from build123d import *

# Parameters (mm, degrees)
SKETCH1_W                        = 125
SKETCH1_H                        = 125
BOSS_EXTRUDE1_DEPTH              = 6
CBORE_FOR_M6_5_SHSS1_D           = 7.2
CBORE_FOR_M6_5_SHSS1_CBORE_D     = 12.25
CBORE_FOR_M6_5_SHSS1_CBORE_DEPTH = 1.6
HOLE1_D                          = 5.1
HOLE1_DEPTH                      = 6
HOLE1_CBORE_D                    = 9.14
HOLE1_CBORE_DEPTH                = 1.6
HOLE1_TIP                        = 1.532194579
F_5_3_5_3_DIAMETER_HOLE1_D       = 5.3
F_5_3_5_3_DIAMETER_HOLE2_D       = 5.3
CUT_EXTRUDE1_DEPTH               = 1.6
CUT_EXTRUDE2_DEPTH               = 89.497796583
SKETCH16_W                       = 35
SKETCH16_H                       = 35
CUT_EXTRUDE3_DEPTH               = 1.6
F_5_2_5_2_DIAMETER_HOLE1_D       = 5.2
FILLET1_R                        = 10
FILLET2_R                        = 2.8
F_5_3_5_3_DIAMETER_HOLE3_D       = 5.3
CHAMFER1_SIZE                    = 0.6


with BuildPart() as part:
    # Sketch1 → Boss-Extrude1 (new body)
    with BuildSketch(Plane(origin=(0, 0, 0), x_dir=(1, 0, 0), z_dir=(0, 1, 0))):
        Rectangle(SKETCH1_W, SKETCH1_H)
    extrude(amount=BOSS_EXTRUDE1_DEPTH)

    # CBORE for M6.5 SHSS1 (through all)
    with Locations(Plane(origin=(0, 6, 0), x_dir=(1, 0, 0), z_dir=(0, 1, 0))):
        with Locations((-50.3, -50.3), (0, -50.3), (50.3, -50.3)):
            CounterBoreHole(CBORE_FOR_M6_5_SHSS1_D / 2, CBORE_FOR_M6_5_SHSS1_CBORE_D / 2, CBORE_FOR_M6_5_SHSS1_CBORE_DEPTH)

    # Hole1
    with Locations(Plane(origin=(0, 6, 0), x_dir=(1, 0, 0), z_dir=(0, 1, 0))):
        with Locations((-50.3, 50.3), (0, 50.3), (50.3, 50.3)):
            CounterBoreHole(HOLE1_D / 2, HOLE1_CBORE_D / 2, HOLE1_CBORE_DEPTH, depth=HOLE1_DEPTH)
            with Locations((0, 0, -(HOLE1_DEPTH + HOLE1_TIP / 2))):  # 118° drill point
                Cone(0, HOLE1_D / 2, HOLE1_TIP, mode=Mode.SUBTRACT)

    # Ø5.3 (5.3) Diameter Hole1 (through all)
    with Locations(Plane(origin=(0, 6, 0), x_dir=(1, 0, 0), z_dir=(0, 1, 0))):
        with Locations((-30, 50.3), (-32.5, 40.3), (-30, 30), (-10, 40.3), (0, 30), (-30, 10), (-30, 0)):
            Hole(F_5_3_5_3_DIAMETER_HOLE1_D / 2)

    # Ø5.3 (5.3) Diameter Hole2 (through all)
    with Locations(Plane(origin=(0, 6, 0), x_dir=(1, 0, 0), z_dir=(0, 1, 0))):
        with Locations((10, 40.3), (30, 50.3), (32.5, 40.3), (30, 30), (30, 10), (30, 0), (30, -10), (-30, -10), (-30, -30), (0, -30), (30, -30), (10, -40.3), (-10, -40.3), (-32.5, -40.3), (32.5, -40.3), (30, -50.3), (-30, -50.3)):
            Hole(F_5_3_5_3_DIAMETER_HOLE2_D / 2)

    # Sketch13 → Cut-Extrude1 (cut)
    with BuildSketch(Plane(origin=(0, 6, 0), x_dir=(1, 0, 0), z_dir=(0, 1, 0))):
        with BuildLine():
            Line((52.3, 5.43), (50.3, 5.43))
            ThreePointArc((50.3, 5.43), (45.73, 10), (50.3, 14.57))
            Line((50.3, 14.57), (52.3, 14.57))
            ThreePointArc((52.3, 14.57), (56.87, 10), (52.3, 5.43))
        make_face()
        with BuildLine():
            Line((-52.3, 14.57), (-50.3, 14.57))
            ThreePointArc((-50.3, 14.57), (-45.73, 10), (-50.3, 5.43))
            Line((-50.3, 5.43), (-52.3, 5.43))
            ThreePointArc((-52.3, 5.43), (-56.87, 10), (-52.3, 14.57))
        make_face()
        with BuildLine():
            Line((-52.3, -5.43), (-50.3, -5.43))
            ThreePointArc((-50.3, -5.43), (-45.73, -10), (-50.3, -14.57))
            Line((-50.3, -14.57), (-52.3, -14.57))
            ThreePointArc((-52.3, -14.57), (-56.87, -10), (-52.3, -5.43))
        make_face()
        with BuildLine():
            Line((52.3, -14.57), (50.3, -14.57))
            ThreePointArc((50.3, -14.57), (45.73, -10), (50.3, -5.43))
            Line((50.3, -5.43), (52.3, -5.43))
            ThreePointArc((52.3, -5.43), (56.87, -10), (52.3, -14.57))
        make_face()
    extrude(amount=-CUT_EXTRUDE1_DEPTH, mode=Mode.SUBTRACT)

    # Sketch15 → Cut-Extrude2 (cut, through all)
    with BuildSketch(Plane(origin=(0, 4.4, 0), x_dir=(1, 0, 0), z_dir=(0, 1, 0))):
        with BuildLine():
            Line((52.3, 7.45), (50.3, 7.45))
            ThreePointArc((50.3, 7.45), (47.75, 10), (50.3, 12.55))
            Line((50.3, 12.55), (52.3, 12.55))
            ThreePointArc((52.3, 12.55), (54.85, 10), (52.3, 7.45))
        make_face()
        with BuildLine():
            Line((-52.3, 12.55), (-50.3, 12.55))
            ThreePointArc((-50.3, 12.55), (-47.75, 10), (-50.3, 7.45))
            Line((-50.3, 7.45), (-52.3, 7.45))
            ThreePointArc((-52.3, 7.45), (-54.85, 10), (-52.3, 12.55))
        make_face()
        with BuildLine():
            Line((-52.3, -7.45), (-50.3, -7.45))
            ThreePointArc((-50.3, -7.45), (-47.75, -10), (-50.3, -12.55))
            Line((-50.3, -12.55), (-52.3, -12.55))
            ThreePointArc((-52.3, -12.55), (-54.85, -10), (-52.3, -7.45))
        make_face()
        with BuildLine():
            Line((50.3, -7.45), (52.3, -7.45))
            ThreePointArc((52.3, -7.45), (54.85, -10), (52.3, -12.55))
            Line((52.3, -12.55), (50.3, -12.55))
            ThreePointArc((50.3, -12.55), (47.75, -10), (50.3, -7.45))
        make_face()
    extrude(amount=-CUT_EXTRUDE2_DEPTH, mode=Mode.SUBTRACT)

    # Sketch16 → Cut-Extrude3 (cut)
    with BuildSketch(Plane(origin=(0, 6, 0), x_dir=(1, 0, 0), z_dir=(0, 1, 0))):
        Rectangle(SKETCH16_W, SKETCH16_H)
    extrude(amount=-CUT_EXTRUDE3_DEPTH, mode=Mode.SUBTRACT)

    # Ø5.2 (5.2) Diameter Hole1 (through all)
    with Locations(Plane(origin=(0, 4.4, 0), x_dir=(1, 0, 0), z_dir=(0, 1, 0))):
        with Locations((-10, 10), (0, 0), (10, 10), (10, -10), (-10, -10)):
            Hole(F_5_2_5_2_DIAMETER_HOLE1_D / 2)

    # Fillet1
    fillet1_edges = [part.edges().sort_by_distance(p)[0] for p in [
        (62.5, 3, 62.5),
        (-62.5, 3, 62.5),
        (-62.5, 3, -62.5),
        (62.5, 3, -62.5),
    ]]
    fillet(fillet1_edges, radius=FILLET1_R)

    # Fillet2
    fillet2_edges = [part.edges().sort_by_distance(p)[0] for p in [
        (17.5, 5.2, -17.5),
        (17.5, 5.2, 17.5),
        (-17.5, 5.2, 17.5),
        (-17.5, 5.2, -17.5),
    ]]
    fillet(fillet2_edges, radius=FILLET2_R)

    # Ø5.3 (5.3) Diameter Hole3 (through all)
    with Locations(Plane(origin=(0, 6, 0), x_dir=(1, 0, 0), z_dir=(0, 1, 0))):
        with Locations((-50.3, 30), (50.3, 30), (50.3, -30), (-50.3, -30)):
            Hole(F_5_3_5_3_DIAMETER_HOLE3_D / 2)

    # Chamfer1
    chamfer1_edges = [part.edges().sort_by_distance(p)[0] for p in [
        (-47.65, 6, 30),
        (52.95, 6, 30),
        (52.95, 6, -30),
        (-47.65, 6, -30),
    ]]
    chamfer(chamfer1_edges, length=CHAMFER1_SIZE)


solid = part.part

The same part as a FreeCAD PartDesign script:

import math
import FreeCAD as App
import Part
import Sketcher

V = App.Vector


def edges_at(feature, points):
    """Names of the edges that pass closest to the given points."""
    edges = feature.Shape.Edges
    near = lambda p: min(range(len(edges)), key=lambda i: edges[i].distToShape(Part.Vertex(*p))[0])
    return sorted({f"Edge{near(p) + 1}" for p in points})

doc = App.newDocument("Part")
params = doc.addObject("Spreadsheet::Sheet", "Params")
for row, (alias, value) in enumerate([
    ("sketch1_width", "125 mm"),
    ("pad1_length", "6 mm"),
    ("sketch2_diameter", "7.2 mm"),
    ("hole_diameter", "7.2 mm"),
    ("hole_cbore_diameter", "12.25 mm"),
    ("hole_cbore_depth", "1.6 mm"),
    ("sketch3_diameter", "5.1 mm"),
    ("hole2_diameter", "5.1 mm"),
    ("hole2_depth", "6 mm"),
    ("hole2_cbore_diameter", "9.14 mm"),
    ("hole2_cbore_depth", "1.6 mm"),
    ("sketch4_diameter", "5.3 mm"),
    ("hole3_diameter", "5.3 mm"),
    ("sketch5_diameter", "5.3 mm"),
    ("hole4_diameter", "5.3 mm"),
    ("sketch6_width", "2 mm"),
    ("sketch6_radius", "4.57 mm"),
    ("pocket1_length", "1.6 mm"),
    ("sketch7_width", "2 mm"),
    ("sketch7_radius", "2.55 mm"),
    ("sketch8_width", "35 mm"),
    ("pocket3_length", "1.6 mm"),
    ("sketch9_diameter", "5.2 mm"),
    ("hole5_diameter", "5.2 mm"),
    ("fillet_radius", "10 mm"),
    ("fillet2_radius", "2.8 mm"),
    ("sketch10_diameter", "5.3 mm"),
    ("hole6_diameter", "5.3 mm"),
    ("chamfer_size", "0.6 mm"),
], start=1):
    params.set(f"A{row}", alias)
    params.set(f"B{row}", "=" + value)
    params.setAlias(f"B{row}", alias)

body = doc.addObject("PartDesign::Body", "Body")

# Sketch on XZ plane
sketch1 = doc.addObject("Sketcher::SketchObject", "Sketch")
body.addObject(sketch1)
sketch1.AttachmentSupport = (doc.XZ_Plane, [""])
sketch1.MapMode = "FlatFace"
sketch1.addGeometry([
    Part.LineSegment(V(-62, -62, 0), V(-62, 62, 0)),
    Part.LineSegment(V(-62, 62, 0), V(62, 62, 0)),
    Part.LineSegment(V(62, 62, 0), V(62, -62, 0)),
    Part.LineSegment(V(62, -62, 0), V(-62, -62, 0)),
], False)
sketch1.addConstraint([
    Sketcher.Constraint("Coincident", 0, 2, 1, 1),
    Sketcher.Constraint("Coincident", 1, 2, 2, 1),
    Sketcher.Constraint("Coincident", 2, 2, 3, 1),
    Sketcher.Constraint("Coincident", 3, 2, 0, 1),
    Sketcher.Constraint("Vertical", 0),
    Sketcher.Constraint("Horizontal", 1),
    Sketcher.Constraint("Vertical", 2),
    Sketcher.Constraint("Horizontal", 3),
    Sketcher.Constraint("Symmetric", 0, 2, 2, 2, -1, 1),
    Sketcher.Constraint("Equal", 3, 0),
    Sketcher.Constraint("DistanceX", 1, 1, 1, 2, 125.0),
])
sketch1.setExpression("Constraints[10]", "Params.sketch1_width")
pad1 = doc.addObject("PartDesign::Pad", "Pad")
body.addObject(pad1)
pad1.Profile = sketch1
pad1.setExpression("Length", "Params.pad1_length")
pad1.Reversed = True

# Sketch on XZ plane
sketch2 = doc.addObject("Sketcher::SketchObject", "Sketch001")
body.addObject(sketch2)
sketch2.AttachmentSupport = (doc.XZ_Plane, [""])
sketch2.MapMode = "FlatFace"
sketch2.AttachmentOffset = App.Placement(V(0, 0, -6), App.Rotation())
sketch2.addGeometry([
    Part.Circle(V(-50.3, 50.3, 0), V(0, 0, 1), 3.6),
    Part.Circle(V(0, 50.3, 0), V(0, 0, 1), 3.6),
    Part.Circle(V(50.3, 50.3, 0), V(0, 0, 1), 3.6),
], False)
sketch2.addConstraint([
    Sketcher.Constraint("Equal", 0, 1),
    Sketcher.Constraint("Equal", 1, 2),
    Sketcher.Constraint("Symmetric", 0, 3, 2, 3, -2),
    Sketcher.Constraint("PointOnObject", 1, 3, -2),
    Sketcher.Constraint("Horizontal", 0, 3, 1, 3),
    Sketcher.Constraint("Diameter", 0, 7.2),
    Sketcher.Constraint("DistanceX", 0, 3, -1, 1, 50.3),
    Sketcher.Constraint("DistanceY", -1, 1, 0, 3, 50.3),
])
sketch2.setExpression("Constraints[5]", "Params.sketch2_diameter")
doc.recompute()
hole = doc.addObject("PartDesign::Hole", "Hole")
body.addObject(hole)
hole.Profile = sketch2
hole.ThreadType = "None"
hole.setExpression("Diameter", "Params.hole_diameter")
hole.DepthType = "ThroughAll"
hole.HoleCutType = "Counterbore"
hole.setExpression("HoleCutDiameter", "Params.hole_cbore_diameter")
hole.setExpression("HoleCutDepth", "Params.hole_cbore_depth")
hole.Reversed = True

# Sketch on XZ plane
sketch3 = doc.addObject("Sketcher::SketchObject", "Sketch002")
body.addObject(sketch3)
sketch3.AttachmentSupport = (doc.XZ_Plane, [""])
sketch3.MapMode = "FlatFace"
sketch3.AttachmentOffset = App.Placement(V(0, 0, -6), App.Rotation())
sketch3.addGeometry([
    Part.Circle(V(-50.3, -50.3, 0), V(0, 0, 1), 2.5),
    Part.Circle(V(0, -50.3, 0), V(0, 0, 1), 2.5),
    Part.Circle(V(50.3, -50.3, 0), V(0, 0, 1), 2.5),
], False)
sketch3.addConstraint([
    Sketcher.Constraint("Equal", 0, 1),
    Sketcher.Constraint("Equal", 1, 2),
    Sketcher.Constraint("Symmetric", 0, 3, 2, 3, -2),
    Sketcher.Constraint("PointOnObject", 1, 3, -2),
    Sketcher.Constraint("Horizontal", 0, 3, 1, 3),
    Sketcher.Constraint("Diameter", 0, 5.1),
    Sketcher.Constraint("DistanceX", 0, 3, -1, 1, 50.3),
    Sketcher.Constraint("DistanceY", 0, 3, -1, 1, 50.3),
])
sketch3.setExpression("Constraints[5]", "Params.sketch3_diameter")
doc.recompute()
hole2 = doc.addObject("PartDesign::Hole", "Hole001")
body.addObject(hole2)
hole2.Profile = sketch3
hole2.ThreadType = "None"
hole2.setExpression("Diameter", "Params.hole2_diameter")
hole2.DepthType = "Dimension"
hole2.setExpression("Depth", "Params.hole2_depth")
hole2.DrillPoint = "Angled"
hole2.DrillPointAngle = 118
hole2.HoleCutType = "Counterbore"
hole2.setExpression("HoleCutDiameter", "Params.hole2_cbore_diameter")
hole2.setExpression("HoleCutDepth", "Params.hole2_cbore_depth")
hole2.Reversed = True

# Sketch on XZ plane
sketch4 = doc.addObject("Sketcher::SketchObject", "Sketch003")
body.addObject(sketch4)
sketch4.AttachmentSupport = (doc.XZ_Plane, [""])
sketch4.MapMode = "FlatFace"
sketch4.AttachmentOffset = App.Placement(V(0, 0, -6), App.Rotation())
sketch4.addGeometry([
    Part.Circle(V(-30, -50.3, 0), V(0, 0, 1), 2.6),  # 0
    Part.Circle(V(-32.5, -40.3, 0), V(0, 0, 1), 2.6),  # 1
    Part.Circle(V(-30, -30, 0), V(0, 0, 1), 2.6),  # 2
    Part.Circle(V(-10, -40.3, 0), V(0, 0, 1), 2.6),  # 3
    Part.Circle(V(0, -30, 0), V(0, 0, 1), 2.6),  # 4
    Part.Circle(V(-30, -10, 0), V(0, 0, 1), 2.6),  # 5
    Part.Circle(V(-30, 0, 0), V(0, 0, 1), 2.6),  # 6
], False)
sketch4.addConstraint([
    Sketcher.Constraint("Equal", 0, 1),
    Sketcher.Constraint("Equal", 1, 2),
    Sketcher.Constraint("Equal", 2, 3),
    Sketcher.Constraint("Equal", 3, 4),
    Sketcher.Constraint("Equal", 4, 5),
    Sketcher.Constraint("Equal", 5, 6),
    Sketcher.Constraint("PointOnObject", 4, 3, -2),
    Sketcher.Constraint("PointOnObject", 6, 3, -1),
    Sketcher.Constraint("Horizontal", 1, 3, 3, 3),
    Sketcher.Constraint("Horizontal", 2, 3, 4, 3),
    Sketcher.Constraint("Vertical", 0, 3, 2, 3),
    Sketcher.Constraint("Vertical", 2, 3, 5, 3),
    Sketcher.Constraint("Vertical", 5, 3, 6, 3),
    Sketcher.Constraint("Diameter", 0, 5.3),
    Sketcher.Constraint("DistanceX", 0, 3, -1, 1, 30.0),
    Sketcher.Constraint("DistanceY", 2, 3, -1, 1, 30.0),
    Sketcher.Constraint("DistanceX", 3, 3, -1, 1, 10.0),
    Sketcher.Constraint("DistanceY", 5, 3, -1, 1, 10.0),
    Sketcher.Constraint("DistanceY", 0, 3, 1, 3, 10.0),
    Sketcher.Constraint("DistanceY", 0, 3, -1, 1, 50.3),
    Sketcher.Constraint("DistanceX", 1, 3, -1, 1, 32.5),
])
sketch4.setExpression("Constraints[13]", "Params.sketch4_diameter")
doc.recompute()
hole3 = doc.addObject("PartDesign::Hole", "Hole002")
body.addObject(hole3)
hole3.Profile = sketch4
hole3.ThreadType = "None"
hole3.setExpression("Diameter", "Params.hole3_diameter")
hole3.DepthType = "ThroughAll"
hole3.Reversed = True

# Sketch on XZ plane
sketch5 = doc.addObject("Sketcher::SketchObject", "Sketch004")
body.addObject(sketch5)
sketch5.AttachmentSupport = (doc.XZ_Plane, [""])
sketch5.MapMode = "FlatFace"
sketch5.AttachmentOffset = App.Placement(V(0, 0, -6), App.Rotation())
sketch5.addGeometry([
    Part.Circle(V(10, -40.3, 0), V(0, 0, 1), 2.6),  # 0
    Part.Circle(V(30, -50.3, 0), V(0, 0, 1), 2.6),  # 1
    Part.Circle(V(32.5, -40.3, 0), V(0, 0, 1), 2.6),  # 2
    Part.Circle(V(30, -30, 0), V(0, 0, 1), 2.6),  # 3
    Part.Circle(V(30, -10, 0), V(0, 0, 1), 2.6),  # 4
    Part.Circle(V(30, 0, 0), V(0, 0, 1), 2.6),  # 5
    Part.Circle(V(30, 10, 0), V(0, 0, 1), 2.6),  # 6
    Part.Circle(V(-30, 10, 0), V(0, 0, 1), 2.6),  # 7
    Part.Circle(V(-30, 30, 0), V(0, 0, 1), 2.6),  # 8
    Part.Circle(V(0, 30, 0), V(0, 0, 1), 2.6),  # 9
    Part.Circle(V(30, 30, 0), V(0, 0, 1), 2.6),  # 10
    Part.Circle(V(10, 40.3, 0), V(0, 0, 1), 2.6),  # 11
    Part.Circle(V(-10, 40.3, 0), V(0, 0, 1), 2.6),  # 12
    Part.Circle(V(-32.5, 40.3, 0), V(0, 0, 1), 2.6),  # 13
    Part.Circle(V(32.5, 40.3, 0), V(0, 0, 1), 2.6),  # 14
    Part.Circle(V(30, 50.3, 0), V(0, 0, 1), 2.6),  # 15
    Part.Circle(V(-30, 50.3, 0), V(0, 0, 1), 2.6),  # 16
], False)
sketch5.addConstraint([
    Sketcher.Constraint("Equal", 0, 1),
    Sketcher.Constraint("Equal", 1, 2),
    Sketcher.Constraint("Equal", 2, 3),
    Sketcher.Constraint("Equal", 3, 4),
    Sketcher.Constraint("Equal", 4, 5),
    Sketcher.Constraint("Equal", 5, 6),
    Sketcher.Constraint("Equal", 6, 7),
    Sketcher.Constraint("Equal", 7, 8),
    Sketcher.Constraint("Equal", 8, 9),
    Sketcher.Constraint("Equal", 9, 10),
    Sketcher.Constraint("Equal", 10, 11),
    Sketcher.Constraint("Equal", 11, 12),
    Sketcher.Constraint("Equal", 12, 13),
    Sketcher.Constraint("Equal", 13, 14),
    Sketcher.Constraint("Equal", 14, 15),
    Sketcher.Constraint("Equal", 15, 16),
    Sketcher.Constraint("Symmetric", 4, 3, 7, 3, -1, 1),
    Sketcher.Constraint("Symmetric", 3, 3, 8, 3, -1, 1),
    Sketcher.Constraint("Symmetric", 0, 3, 12, 3, -1, 1),
    Sketcher.Constraint("Symmetric", 2, 3, 13, 3, -1, 1),
    Sketcher.Constraint("Symmetric", 1, 3, 16, 3, -1, 1),
    Sketcher.Constraint("Symmetric", 6, 3, 7, 3, -2),
    Sketcher.Constraint("Symmetric", 8, 3, 10, 3, -2),
    Sketcher.Constraint("Symmetric", 11, 3, 12, 3, -2),
    Sketcher.Constraint("Symmetric", 13, 3, 14, 3, -2),
    Sketcher.Constraint("Symmetric", 15, 3, 16, 3, -2),
    Sketcher.Constraint("PointOnObject", 5, 3, -1),
    Sketcher.Constraint("PointOnObject", 9, 3, -2),
    Sketcher.Constraint("Horizontal", 0, 3, 2, 3),
    Sketcher.Constraint("Horizontal", 8, 3, 9, 3),
    Sketcher.Constraint("Vertical", 1, 3, 3, 3),
    Sketcher.Constraint("Vertical", 3, 3, 4, 3),
    Sketcher.Constraint("Vertical", 4, 3, 5, 3),
    Sketcher.Constraint("Diameter", 0, 5.3),
    Sketcher.Constraint("DistanceX", -1, 1, 0, 3, 10.0),
    Sketcher.Constraint("DistanceX", -1, 1, 1, 3, 30.0),
    Sketcher.Constraint("DistanceY", 3, 3, -1, 1, 30.0),
    Sketcher.Constraint("DistanceY", 4, 3, -1, 1, 10.0),
    Sketcher.Constraint("DistanceY", 1, 3, 0, 3, 10.0),
    Sketcher.Constraint("DistanceY", 0, 3, -1, 1, 40.3),
    Sketcher.Constraint("DistanceX", -1, 1, 2, 3, 32.5),
])
sketch5.setExpression("Constraints[33]", "Params.sketch5_diameter")
doc.recompute()
hole4 = doc.addObject("PartDesign::Hole", "Hole003")
body.addObject(hole4)
hole4.Profile = sketch5
hole4.ThreadType = "None"
hole4.setExpression("Diameter", "Params.hole4_diameter")
hole4.DepthType = "ThroughAll"
hole4.Reversed = True

# Sketch on XZ plane
sketch6 = doc.addObject("Sketcher::SketchObject", "Sketch005")
body.addObject(sketch6)
sketch6.AttachmentSupport = (doc.XZ_Plane, [""])
sketch6.MapMode = "FlatFace"
sketch6.AttachmentOffset = App.Placement(V(0, 0, -6), App.Rotation())
sketch6.addGeometry([
    Part.LineSegment(V(50.3, -5.4, 0), V(52.3, -5.4, 0)),  # 0
    Part.ArcOfCircle(Part.Circle(V(52.3, -10, 0), V(0, 0, 1), 4.6), math.radians(-90), math.radians(90)),  # 1
    Part.LineSegment(V(52.3, -14.6, 0), V(50.3, -14.6, 0)),  # 2
    Part.ArcOfCircle(Part.Circle(V(50.3, -10, 0), V(0, 0, 1), 4.6), math.radians(90), math.radians(270)),  # 3
    Part.LineSegment(V(-50.3, -14.6, 0), V(-52.3, -14.6, 0)),  # 4
    Part.ArcOfCircle(Part.Circle(V(-52.3, -10, 0), V(0, 0, 1), 4.6), math.radians(90), math.radians(270)),  # 5
    Part.LineSegment(V(-52.3, -5.4, 0), V(-50.3, -5.4, 0)),  # 6
    Part.ArcOfCircle(Part.Circle(V(-50.3, -10, 0), V(0, 0, 1), 4.6), math.radians(-90), math.radians(90)),  # 7
    Part.LineSegment(V(-50.3, 5.4, 0), V(-52.3, 5.4, 0)),  # 8
    Part.ArcOfCircle(Part.Circle(V(-52.3, 10, 0), V(0, 0, 1), 4.6), math.radians(90), math.radians(270)),  # 9
    Part.LineSegment(V(-52.3, 14.6, 0), V(-50.3, 14.6, 0)),  # 10
    Part.ArcOfCircle(Part.Circle(V(-50.3, 10, 0), V(0, 0, 1), 4.6), math.radians(-90), math.radians(90)),  # 11
    Part.LineSegment(V(50.3, 14.6, 0), V(52.3, 14.6, 0)),  # 12
    Part.ArcOfCircle(Part.Circle(V(52.3, 10, 0), V(0, 0, 1), 4.6), math.radians(-90), math.radians(90)),  # 13
    Part.LineSegment(V(52.3, 5.4, 0), V(50.3, 5.4, 0)),  # 14
    Part.ArcOfCircle(Part.Circle(V(50.3, 10, 0), V(0, 0, 1), 4.6), math.radians(90), math.radians(270)),  # 15
], False)
sketch6.addConstraint([
    Sketcher.Constraint("Tangent", 0, 2, 1, 2),
    Sketcher.Constraint("Tangent", 1, 1, 2, 1),
    Sketcher.Constraint("Tangent", 2, 2, 3, 2),
    Sketcher.Constraint("Tangent", 3, 1, 0, 1),
    Sketcher.Constraint("Tangent", 4, 2, 5, 2),
    Sketcher.Constraint("Tangent", 5, 1, 6, 1),
    Sketcher.Constraint("Tangent", 6, 2, 7, 2),
    Sketcher.Constraint("Tangent", 7, 1, 4, 1),
    Sketcher.Constraint("Tangent", 8, 2, 9, 2),
    Sketcher.Constraint("Tangent", 9, 1, 10, 1),
    Sketcher.Constraint("Tangent", 10, 2, 11, 2),
    Sketcher.Constraint("Tangent", 11, 1, 8, 1),
    Sketcher.Constraint("Tangent", 12, 2, 13, 2),
    Sketcher.Constraint("Tangent", 13, 1, 14, 1),
    Sketcher.Constraint("Tangent", 14, 2, 15, 2),
    Sketcher.Constraint("Tangent", 15, 1, 12, 1),
    Sketcher.Constraint("Horizontal", 0),
    Sketcher.Constraint("Horizontal", 2),
    Sketcher.Constraint("Horizontal", 4),
    Sketcher.Constraint("Horizontal", 6),
    Sketcher.Constraint("Horizontal", 8),
    Sketcher.Constraint("Horizontal", 10),
    Sketcher.Constraint("Horizontal", 12),
    Sketcher.Constraint("Horizontal", 14),
    Sketcher.Constraint("Equal", 3, 5),
    Sketcher.Constraint("Equal", 7, 9),
    Sketcher.Constraint("Equal", 11, 13),
    Sketcher.Constraint("Symmetric", 1, 3, 9, 3, -1, 1),
    Sketcher.Constraint("Symmetric", 5, 3, 13, 3, -1, 1),
    Sketcher.Constraint("Symmetric", 1, 3, 5, 3, -2),
    Sketcher.Constraint("Vertical", 7, 3, 11, 3),
    Sketcher.Constraint("Vertical", 3, 3, 15, 3),
    Sketcher.Constraint("Equal", 2, 4),
    Sketcher.Constraint("DistanceX", 0, 1, 0, 2, 2.0),
    Sketcher.Constraint("Radius", 1, 4.57),
    Sketcher.Constraint("DistanceY", 1, 3, -1, 1, 10.0),
    Sketcher.Constraint("DistanceX", -1, 1, 1, 3, 52.3),
])
sketch6.setExpression("Constraints[33]", "Params.sketch6_width")
sketch6.setExpression("Constraints[34]", "Params.sketch6_radius")
pocket1 = doc.addObject("PartDesign::Pocket", "Pocket")
body.addObject(pocket1)
pocket1.Profile = sketch6
pocket1.setExpression("Length", "Params.pocket1_length")
pocket1.Reversed = True

# Sketch on XZ plane
sketch7 = doc.addObject("Sketcher::SketchObject", "Sketch006")
body.addObject(sketch7)
sketch7.AttachmentSupport = (doc.XZ_Plane, [""])
sketch7.MapMode = "FlatFace"
sketch7.AttachmentOffset = App.Placement(V(0, 0, -4.4), App.Rotation())
sketch7.addGeometry([
    Part.LineSegment(V(50.3, -7.5, 0), V(52.3, -7.5, 0)),  # 0
    Part.ArcOfCircle(Part.Circle(V(52.3, -10, 0), V(0, 0, 1), 2.5), math.radians(-90), math.radians(90)),  # 1
    Part.LineSegment(V(52.3, -12.6, 0), V(50.3, -12.6, 0)),  # 2
    Part.ArcOfCircle(Part.Circle(V(50.3, -10, 0), V(0, 0, 1), 2.5), math.radians(90), math.radians(270)),  # 3
    Part.LineSegment(V(-50.3, -12.6, 0), V(-52.3, -12.6, 0)),  # 4
    Part.ArcOfCircle(Part.Circle(V(-52.3, -10, 0), V(0, 0, 1), 2.5), math.radians(90), math.radians(270)),  # 5
    Part.LineSegment(V(-52.3, -7.5, 0), V(-50.3, -7.5, 0)),  # 6
    Part.ArcOfCircle(Part.Circle(V(-50.3, -10, 0), V(0, 0, 1), 2.5), math.radians(-90), math.radians(90)),  # 7
    Part.LineSegment(V(-50.3, 7.5, 0), V(-52.3, 7.5, 0)),  # 8
    Part.ArcOfCircle(Part.Circle(V(-52.3, 10, 0), V(0, 0, 1), 2.5), math.radians(90), math.radians(270)),  # 9
    Part.LineSegment(V(-52.3, 12.6, 0), V(-50.3, 12.6, 0)),  # 10
    Part.ArcOfCircle(Part.Circle(V(-50.3, 10, 0), V(0, 0, 1), 2.5), math.radians(-90), math.radians(90)),  # 11
    Part.LineSegment(V(52.3, 7.5, 0), V(50.3, 7.5, 0)),  # 12
    Part.ArcOfCircle(Part.Circle(V(50.3, 10, 0), V(0, 0, 1), 2.5), math.radians(90), math.radians(270)),  # 13
    Part.LineSegment(V(50.3, 12.6, 0), V(52.3, 12.6, 0)),  # 14
    Part.ArcOfCircle(Part.Circle(V(52.3, 10, 0), V(0, 0, 1), 2.5), math.radians(-90), math.radians(90)),  # 15
], False)
sketch7.addConstraint([
    Sketcher.Constraint("Tangent", 0, 2, 1, 2),
    Sketcher.Constraint("Tangent", 1, 1, 2, 1),
    Sketcher.Constraint("Tangent", 2, 2, 3, 2),
    Sketcher.Constraint("Tangent", 3, 1, 0, 1),
    Sketcher.Constraint("Tangent", 4, 2, 5, 2),
    Sketcher.Constraint("Tangent", 5, 1, 6, 1),
    Sketcher.Constraint("Tangent", 6, 2, 7, 2),
    Sketcher.Constraint("Tangent", 7, 1, 4, 1),
    Sketcher.Constraint("Tangent", 8, 2, 9, 2),
    Sketcher.Constraint("Tangent", 9, 1, 10, 1),
    Sketcher.Constraint("Tangent", 10, 2, 11, 2),
    Sketcher.Constraint("Tangent", 11, 1, 8, 1),
    Sketcher.Constraint("Tangent", 12, 2, 13, 2),
    Sketcher.Constraint("Tangent", 13, 1, 14, 1),
    Sketcher.Constraint("Tangent", 14, 2, 15, 2),
    Sketcher.Constraint("Tangent", 15, 1, 12, 1),
    Sketcher.Constraint("Horizontal", 0),
    Sketcher.Constraint("Horizontal", 2),
    Sketcher.Constraint("Horizontal", 4),
    Sketcher.Constraint("Horizontal", 6),
    Sketcher.Constraint("Horizontal", 8),
    Sketcher.Constraint("Horizontal", 10),
    Sketcher.Constraint("Horizontal", 12),
    Sketcher.Constraint("Horizontal", 14),
    Sketcher.Constraint("Equal", 3, 5),
    Sketcher.Constraint("Equal", 7, 9),
    Sketcher.Constraint("Equal", 11, 13),
    Sketcher.Constraint("Symmetric", 1, 3, 9, 3, -1, 1),
    Sketcher.Constraint("Symmetric", 7, 3, 13, 3, -1, 1),
    Sketcher.Constraint("Symmetric", 1, 3, 5, 3, -2),
    Sketcher.Constraint("Vertical", 7, 3, 11, 3),
    Sketcher.Constraint("Vertical", 3, 3, 13, 3),
    Sketcher.Constraint("Vertical", 1, 3, 15, 3),
    Sketcher.Constraint("DistanceX", 0, 1, 0, 2, 2.0),
    Sketcher.Constraint("Radius", 1, 2.55),
    Sketcher.Constraint("DistanceY", 1, 3, -1, 1, 10.0),
    Sketcher.Constraint("DistanceX", -1, 1, 1, 3, 52.3),
])
sketch7.setExpression("Constraints[33]", "Params.sketch7_width")
sketch7.setExpression("Constraints[34]", "Params.sketch7_radius")
pocket2 = doc.addObject("PartDesign::Pocket", "Pocket001")
body.addObject(pocket2)
pocket2.Profile = sketch7
pocket2.Type = "ThroughAll"
pocket2.Reversed = True

# Sketch on XZ plane
sketch8 = doc.addObject("Sketcher::SketchObject", "Sketch007")
body.addObject(sketch8)
sketch8.AttachmentSupport = (doc.XZ_Plane, [""])
sketch8.MapMode = "FlatFace"
sketch8.AttachmentOffset = App.Placement(V(0, 0, -6), App.Rotation())
sketch8.addGeometry([
    Part.LineSegment(V(-18, -18, 0), V(-18, 18, 0)),
    Part.LineSegment(V(-18, 18, 0), V(18, 18, 0)),
    Part.LineSegment(V(18, 18, 0), V(18, -18, 0)),
    Part.LineSegment(V(18, -18, 0), V(-18, -18, 0)),
], False)
sketch8.addConstraint([
    Sketcher.Constraint("Coincident", 0, 2, 1, 1),
    Sketcher.Constraint("Coincident", 1, 2, 2, 1),
    Sketcher.Constraint("Coincident", 2, 2, 3, 1),
    Sketcher.Constraint("Coincident", 3, 2, 0, 1),
    Sketcher.Constraint("Vertical", 0),
    Sketcher.Constraint("Horizontal", 1),
    Sketcher.Constraint("Vertical", 2),
    Sketcher.Constraint("Horizontal", 3),
    Sketcher.Constraint("Symmetric", 0, 2, 2, 2, -1, 1),
    Sketcher.Constraint("Equal", 3, 0),
    Sketcher.Constraint("DistanceX", 1, 1, 1, 2, 35.0),
])
sketch8.setExpression("Constraints[10]", "Params.sketch8_width")
pocket3 = doc.addObject("PartDesign::Pocket", "Pocket002")
body.addObject(pocket3)
pocket3.Profile = sketch8
pocket3.setExpression("Length", "Params.pocket3_length")
pocket3.Reversed = True

# Sketch on XZ plane
sketch9 = doc.addObject("Sketcher::SketchObject", "Sketch008")
body.addObject(sketch9)
sketch9.AttachmentSupport = (doc.XZ_Plane, [""])
sketch9.MapMode = "FlatFace"
sketch9.AttachmentOffset = App.Placement(V(0, 0, -4.4), App.Rotation())
sketch9.addGeometry([
    Part.Circle(V(-10, -10, 0), V(0, 0, 1), 2.6),  # 0
    Part.Circle(V(0, 0, 0), V(0, 0, 1), 2.6),  # 1
    Part.Circle(V(10, -10, 0), V(0, 0, 1), 2.6),  # 2
    Part.Circle(V(10, 10, 0), V(0, 0, 1), 2.6),  # 3
    Part.Circle(V(-10, 10, 0), V(0, 0, 1), 2.6),  # 4
], False)
sketch9.addConstraint([
    Sketcher.Constraint("Coincident", 1, 3, -1, 1),
    Sketcher.Constraint("Equal", 0, 1),
    Sketcher.Constraint("Equal", 1, 2),
    Sketcher.Constraint("Equal", 2, 3),
    Sketcher.Constraint("Equal", 3, 4),
    Sketcher.Constraint("Symmetric", 0, 3, 3, 3, -1, 1),
    Sketcher.Constraint("Symmetric", 2, 3, 4, 3, -1, 1),
    Sketcher.Constraint("Symmetric", 0, 3, 2, 3, -2),
    Sketcher.Constraint("Diameter", 0, 5.2),
    Sketcher.Constraint("DistanceX", 0, 3, -1, 1, 10.0),
    Sketcher.Constraint("DistanceY", 0, 3, -1, 1, 10.0),
])
sketch9.setExpression("Constraints[8]", "Params.sketch9_diameter")
doc.recompute()
hole5 = doc.addObject("PartDesign::Hole", "Hole004")
body.addObject(hole5)
hole5.Profile = sketch9
hole5.ThreadType = "None"
hole5.setExpression("Diameter", "Params.hole5_diameter")
hole5.DepthType = "ThroughAll"
hole5.Reversed = True
doc.recompute()

fillet = doc.addObject("PartDesign::Fillet", "Fillet")
body.addObject(fillet)
fillet.Base = (hole5, edges_at(hole5, [
    (62.5, 3, 62.5),
    (-62.5, 3, 62.5),
    (-62.5, 3, -62.5),
    (62.5, 3, -62.5),
]))
fillet.setExpression("Radius", "Params.fillet_radius")
doc.recompute()

fillet2 = doc.addObject("PartDesign::Fillet", "Fillet001")
body.addObject(fillet2)
fillet2.Base = (fillet, edges_at(fillet, [
    (17.5, 5.2, -17.5),
    (17.5, 5.2, 17.5),
    (-17.5, 5.2, 17.5),
    (-17.5, 5.2, -17.5),
]))
fillet2.setExpression("Radius", "Params.fillet2_radius")

# Sketch on XZ plane
sketch10 = doc.addObject("Sketcher::SketchObject", "Sketch009")
body.addObject(sketch10)
sketch10.AttachmentSupport = (doc.XZ_Plane, [""])
sketch10.MapMode = "FlatFace"
sketch10.AttachmentOffset = App.Placement(V(0, 0, -6), App.Rotation())
sketch10.addGeometry([
    Part.Circle(V(-50.3, -30, 0), V(0, 0, 1), 2.6),
    Part.Circle(V(50.3, -30, 0), V(0, 0, 1), 2.6),
    Part.Circle(V(50.3, 30, 0), V(0, 0, 1), 2.6),
    Part.Circle(V(-50.3, 30, 0), V(0, 0, 1), 2.6),
], False)
sketch10.addConstraint([
    Sketcher.Constraint("Equal", 0, 1),
    Sketcher.Constraint("Equal", 1, 2),
    Sketcher.Constraint("Equal", 2, 3),
    Sketcher.Constraint("Symmetric", 0, 3, 2, 3, -1, 1),
    Sketcher.Constraint("Symmetric", 1, 3, 3, 3, -1, 1),
    Sketcher.Constraint("Symmetric", 0, 3, 1, 3, -2),
    Sketcher.Constraint("Diameter", 0, 5.3),
    Sketcher.Constraint("DistanceY", 0, 3, -1, 1, 30.0),
    Sketcher.Constraint("DistanceX", 0, 3, -1, 1, 50.3),
])
sketch10.setExpression("Constraints[6]", "Params.sketch10_diameter")
doc.recompute()
hole6 = doc.addObject("PartDesign::Hole", "Hole005")
body.addObject(hole6)
hole6.Profile = sketch10
hole6.ThreadType = "None"
hole6.setExpression("Diameter", "Params.hole6_diameter")
hole6.DepthType = "ThroughAll"
hole6.Reversed = True
doc.recompute()

chamfer = doc.addObject("PartDesign::Chamfer", "Chamfer")
body.addObject(chamfer)
chamfer.Base = (hole6, edges_at(hole6, [
    (-47.65, 6, 30),
    (52.95, 6, 30),
    (52.95, 6, -30),
    (-47.65, 6, -30),
]))
chamfer.setExpression("Size", "Params.chamfer_size")

doc.recompute()
